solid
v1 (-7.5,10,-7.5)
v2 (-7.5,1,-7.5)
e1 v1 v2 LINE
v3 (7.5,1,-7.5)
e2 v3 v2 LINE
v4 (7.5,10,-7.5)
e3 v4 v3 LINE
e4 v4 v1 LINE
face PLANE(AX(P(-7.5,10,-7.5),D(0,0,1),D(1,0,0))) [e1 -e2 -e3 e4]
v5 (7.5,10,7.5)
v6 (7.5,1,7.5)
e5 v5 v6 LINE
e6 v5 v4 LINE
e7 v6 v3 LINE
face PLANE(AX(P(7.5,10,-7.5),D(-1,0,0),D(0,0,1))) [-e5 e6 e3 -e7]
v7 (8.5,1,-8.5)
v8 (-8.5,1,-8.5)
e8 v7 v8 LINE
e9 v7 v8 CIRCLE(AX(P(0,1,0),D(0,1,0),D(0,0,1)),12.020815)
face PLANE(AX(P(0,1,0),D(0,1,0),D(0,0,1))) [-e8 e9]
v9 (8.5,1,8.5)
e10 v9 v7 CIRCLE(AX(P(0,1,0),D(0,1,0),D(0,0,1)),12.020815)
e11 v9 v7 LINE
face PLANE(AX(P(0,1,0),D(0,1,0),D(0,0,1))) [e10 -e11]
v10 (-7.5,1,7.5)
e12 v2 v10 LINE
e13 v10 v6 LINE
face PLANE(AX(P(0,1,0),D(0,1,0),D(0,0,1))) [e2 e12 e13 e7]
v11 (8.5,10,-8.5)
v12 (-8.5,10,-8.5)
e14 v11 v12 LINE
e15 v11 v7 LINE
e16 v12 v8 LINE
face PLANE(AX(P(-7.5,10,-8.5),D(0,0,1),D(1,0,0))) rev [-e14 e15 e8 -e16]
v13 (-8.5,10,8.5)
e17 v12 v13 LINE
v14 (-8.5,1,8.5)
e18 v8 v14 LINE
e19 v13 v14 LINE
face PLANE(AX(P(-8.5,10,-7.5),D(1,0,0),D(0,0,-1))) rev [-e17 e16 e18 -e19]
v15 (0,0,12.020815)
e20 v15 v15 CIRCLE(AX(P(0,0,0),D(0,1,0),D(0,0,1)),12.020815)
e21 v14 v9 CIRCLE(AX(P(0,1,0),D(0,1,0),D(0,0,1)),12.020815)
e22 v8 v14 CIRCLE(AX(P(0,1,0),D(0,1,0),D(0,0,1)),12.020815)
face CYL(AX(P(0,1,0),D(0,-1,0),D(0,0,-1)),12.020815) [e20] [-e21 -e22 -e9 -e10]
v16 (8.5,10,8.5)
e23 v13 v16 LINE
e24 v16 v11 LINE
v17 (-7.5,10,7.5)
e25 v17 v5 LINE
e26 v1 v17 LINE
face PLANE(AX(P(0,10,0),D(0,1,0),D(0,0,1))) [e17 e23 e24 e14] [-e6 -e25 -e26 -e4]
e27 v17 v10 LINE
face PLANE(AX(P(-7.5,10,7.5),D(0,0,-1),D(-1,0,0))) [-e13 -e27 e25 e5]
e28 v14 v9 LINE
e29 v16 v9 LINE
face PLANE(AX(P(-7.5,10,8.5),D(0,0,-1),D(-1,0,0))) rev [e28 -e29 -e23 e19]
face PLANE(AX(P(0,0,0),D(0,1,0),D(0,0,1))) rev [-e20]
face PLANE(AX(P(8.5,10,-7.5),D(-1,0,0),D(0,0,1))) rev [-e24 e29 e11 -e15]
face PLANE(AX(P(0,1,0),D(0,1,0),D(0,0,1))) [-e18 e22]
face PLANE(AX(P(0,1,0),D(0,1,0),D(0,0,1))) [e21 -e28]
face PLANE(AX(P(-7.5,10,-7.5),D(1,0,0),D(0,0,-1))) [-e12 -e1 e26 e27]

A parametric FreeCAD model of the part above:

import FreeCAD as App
import Part
import Sketcher
from FreeCAD import Vector
Q = App.Units.Quantity


def add_polygon(sketch, points):
    """Adds a closed chain of lines whose ends are joined by coincident constraints."""
    first, n = sketch.GeometryCount, len(points)
    for a, b in zip(points, points[1:] + points[:1]):
        sketch.addGeometry(Part.LineSegment(App.Vector(*a, 0), App.Vector(*b, 0)), False)
    for i in range(n):
        sketch.addConstraint(Sketcher.Constraint("Coincident", first + i, 2, first + (i + 1) % n, 1))

doc = App.newDocument("Part")
body = doc.addObject("PartDesign::Body", "Body")

# Sketch on XZ plane
sketch1 = body.newObject("Sketcher::SketchObject", "Sketch")
sketch1.AttachmentSupport = (doc.getObject("XZ_Plane"), [""])
sketch1.MapMode = "FlatFace"
add_polygon(sketch1, [(-8, -8), (-8, 8), (8, 8), (8, -8)])  # lines 0-3
add_polygon(sketch1, [(8, 8), (-8, 8), (-8, -8), (8, -8)])  # lines 4-7
sketch1.addConstraint(Sketcher.Constraint("Vertical", 0))
sketch1.addConstraint(Sketcher.Constraint("Horizontal", 1))
sketch1.addConstraint(Sketcher.Constraint("Vertical", 2))
sketch1.addConstraint(Sketcher.Constraint("Horizontal", 3))
sketch1.addConstraint(Sketcher.Constraint("Horizontal", 4))
sketch1.addConstraint(Sketcher.Constraint("Vertical", 5))
sketch1.addConstraint(Sketcher.Constraint("Horizontal", 6))
sketch1.addConstraint(Sketcher.Constraint("Vertical", 7))
sketch1.addConstraint(Sketcher.Constraint("Symmetric", 0, 2, 2, 2, -1, 1))
sketch1.addConstraint(Sketcher.Constraint("Symmetric", 4, 2, 6, 2, -1, 1))
sketch1.addConstraint(Sketcher.Constraint("Equal", 3, 0))
sketch1.addConstraint(Sketcher.Constraint("Equal", 6, 5))
sketch1.addConstraint(Sketcher.Constraint("DistanceX", 1, 1, 1, 2, Q("17 mm")))
sketch1.addConstraint(Sketcher.Constraint("DistanceX", 4, 2, 4, 1, Q("15 mm")))
pad1 = body.newObject("PartDesign::Pad", "Pad")
pad1.Profile = sketch1
pad1.Length = 10
pad1.Reversed = True

# Sketch on XZ plane
sketch2 = body.newObject("Sketcher::SketchObject", "Sketch001")
sketch2.AttachmentSupport = (doc.getObject("XZ_Plane"), [""])
sketch2.MapMode = "FlatFace"
sketch2.addGeometry(Part.Circle(Vector(0, 0, 0), Vector(0, 0, 1), 12), False)
sketch2.addConstraint(Sketcher.Constraint("Coincident", 0, 3, -1, 1))
sketch2.addConstraint(Sketcher.Constraint("Diameter", 0, Q("24.041631 mm")))
pad2 = body.newObject("PartDesign::Pad", "Pad001")
pad2.Profile = sketch2
pad2.Length = 1
pad2.Reversed = True

doc.recompute()
